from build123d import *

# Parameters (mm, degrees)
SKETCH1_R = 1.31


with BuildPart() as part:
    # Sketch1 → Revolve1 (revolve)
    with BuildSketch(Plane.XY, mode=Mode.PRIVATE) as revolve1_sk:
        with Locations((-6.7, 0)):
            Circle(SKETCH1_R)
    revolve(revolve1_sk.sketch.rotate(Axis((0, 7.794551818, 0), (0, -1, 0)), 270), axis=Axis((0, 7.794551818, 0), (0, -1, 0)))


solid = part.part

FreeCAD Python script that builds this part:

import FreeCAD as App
import Part
import Sketcher
from FreeCAD import Vector

doc = App.newDocument("Part")
body = doc.addObject("PartDesign::Body", "Body")

sketch1 = body.newObject("Sketcher::SketchObject", "Sketch")
sketch1.AttachmentSupport = (doc.getObject("XY_Plane"), [""])
sketch1.MapMode = "FlatFace"
sketch1.addGeometry(Part.Circle(Vector(-6.7, 0, 0), Vector(0, 0, 1), 1.31), False)
sketch1.addConstraint([
    Sketcher.Constraint("PointOnObject", 0, 3, -1),
    Sketcher.Constraint("Diameter", 0, 2.62),
    Sketcher.Constraint("DistanceX", 0, 3, -1, 1, 6.7),
])
revolution = body.newObject("PartDesign::Revolution", "Revolution")
revolution.Profile = sketch1
revolution.ReferenceAxis = (sketch1, ["V_Axis"])
revolution.Angle = 360

doc.recompute()
